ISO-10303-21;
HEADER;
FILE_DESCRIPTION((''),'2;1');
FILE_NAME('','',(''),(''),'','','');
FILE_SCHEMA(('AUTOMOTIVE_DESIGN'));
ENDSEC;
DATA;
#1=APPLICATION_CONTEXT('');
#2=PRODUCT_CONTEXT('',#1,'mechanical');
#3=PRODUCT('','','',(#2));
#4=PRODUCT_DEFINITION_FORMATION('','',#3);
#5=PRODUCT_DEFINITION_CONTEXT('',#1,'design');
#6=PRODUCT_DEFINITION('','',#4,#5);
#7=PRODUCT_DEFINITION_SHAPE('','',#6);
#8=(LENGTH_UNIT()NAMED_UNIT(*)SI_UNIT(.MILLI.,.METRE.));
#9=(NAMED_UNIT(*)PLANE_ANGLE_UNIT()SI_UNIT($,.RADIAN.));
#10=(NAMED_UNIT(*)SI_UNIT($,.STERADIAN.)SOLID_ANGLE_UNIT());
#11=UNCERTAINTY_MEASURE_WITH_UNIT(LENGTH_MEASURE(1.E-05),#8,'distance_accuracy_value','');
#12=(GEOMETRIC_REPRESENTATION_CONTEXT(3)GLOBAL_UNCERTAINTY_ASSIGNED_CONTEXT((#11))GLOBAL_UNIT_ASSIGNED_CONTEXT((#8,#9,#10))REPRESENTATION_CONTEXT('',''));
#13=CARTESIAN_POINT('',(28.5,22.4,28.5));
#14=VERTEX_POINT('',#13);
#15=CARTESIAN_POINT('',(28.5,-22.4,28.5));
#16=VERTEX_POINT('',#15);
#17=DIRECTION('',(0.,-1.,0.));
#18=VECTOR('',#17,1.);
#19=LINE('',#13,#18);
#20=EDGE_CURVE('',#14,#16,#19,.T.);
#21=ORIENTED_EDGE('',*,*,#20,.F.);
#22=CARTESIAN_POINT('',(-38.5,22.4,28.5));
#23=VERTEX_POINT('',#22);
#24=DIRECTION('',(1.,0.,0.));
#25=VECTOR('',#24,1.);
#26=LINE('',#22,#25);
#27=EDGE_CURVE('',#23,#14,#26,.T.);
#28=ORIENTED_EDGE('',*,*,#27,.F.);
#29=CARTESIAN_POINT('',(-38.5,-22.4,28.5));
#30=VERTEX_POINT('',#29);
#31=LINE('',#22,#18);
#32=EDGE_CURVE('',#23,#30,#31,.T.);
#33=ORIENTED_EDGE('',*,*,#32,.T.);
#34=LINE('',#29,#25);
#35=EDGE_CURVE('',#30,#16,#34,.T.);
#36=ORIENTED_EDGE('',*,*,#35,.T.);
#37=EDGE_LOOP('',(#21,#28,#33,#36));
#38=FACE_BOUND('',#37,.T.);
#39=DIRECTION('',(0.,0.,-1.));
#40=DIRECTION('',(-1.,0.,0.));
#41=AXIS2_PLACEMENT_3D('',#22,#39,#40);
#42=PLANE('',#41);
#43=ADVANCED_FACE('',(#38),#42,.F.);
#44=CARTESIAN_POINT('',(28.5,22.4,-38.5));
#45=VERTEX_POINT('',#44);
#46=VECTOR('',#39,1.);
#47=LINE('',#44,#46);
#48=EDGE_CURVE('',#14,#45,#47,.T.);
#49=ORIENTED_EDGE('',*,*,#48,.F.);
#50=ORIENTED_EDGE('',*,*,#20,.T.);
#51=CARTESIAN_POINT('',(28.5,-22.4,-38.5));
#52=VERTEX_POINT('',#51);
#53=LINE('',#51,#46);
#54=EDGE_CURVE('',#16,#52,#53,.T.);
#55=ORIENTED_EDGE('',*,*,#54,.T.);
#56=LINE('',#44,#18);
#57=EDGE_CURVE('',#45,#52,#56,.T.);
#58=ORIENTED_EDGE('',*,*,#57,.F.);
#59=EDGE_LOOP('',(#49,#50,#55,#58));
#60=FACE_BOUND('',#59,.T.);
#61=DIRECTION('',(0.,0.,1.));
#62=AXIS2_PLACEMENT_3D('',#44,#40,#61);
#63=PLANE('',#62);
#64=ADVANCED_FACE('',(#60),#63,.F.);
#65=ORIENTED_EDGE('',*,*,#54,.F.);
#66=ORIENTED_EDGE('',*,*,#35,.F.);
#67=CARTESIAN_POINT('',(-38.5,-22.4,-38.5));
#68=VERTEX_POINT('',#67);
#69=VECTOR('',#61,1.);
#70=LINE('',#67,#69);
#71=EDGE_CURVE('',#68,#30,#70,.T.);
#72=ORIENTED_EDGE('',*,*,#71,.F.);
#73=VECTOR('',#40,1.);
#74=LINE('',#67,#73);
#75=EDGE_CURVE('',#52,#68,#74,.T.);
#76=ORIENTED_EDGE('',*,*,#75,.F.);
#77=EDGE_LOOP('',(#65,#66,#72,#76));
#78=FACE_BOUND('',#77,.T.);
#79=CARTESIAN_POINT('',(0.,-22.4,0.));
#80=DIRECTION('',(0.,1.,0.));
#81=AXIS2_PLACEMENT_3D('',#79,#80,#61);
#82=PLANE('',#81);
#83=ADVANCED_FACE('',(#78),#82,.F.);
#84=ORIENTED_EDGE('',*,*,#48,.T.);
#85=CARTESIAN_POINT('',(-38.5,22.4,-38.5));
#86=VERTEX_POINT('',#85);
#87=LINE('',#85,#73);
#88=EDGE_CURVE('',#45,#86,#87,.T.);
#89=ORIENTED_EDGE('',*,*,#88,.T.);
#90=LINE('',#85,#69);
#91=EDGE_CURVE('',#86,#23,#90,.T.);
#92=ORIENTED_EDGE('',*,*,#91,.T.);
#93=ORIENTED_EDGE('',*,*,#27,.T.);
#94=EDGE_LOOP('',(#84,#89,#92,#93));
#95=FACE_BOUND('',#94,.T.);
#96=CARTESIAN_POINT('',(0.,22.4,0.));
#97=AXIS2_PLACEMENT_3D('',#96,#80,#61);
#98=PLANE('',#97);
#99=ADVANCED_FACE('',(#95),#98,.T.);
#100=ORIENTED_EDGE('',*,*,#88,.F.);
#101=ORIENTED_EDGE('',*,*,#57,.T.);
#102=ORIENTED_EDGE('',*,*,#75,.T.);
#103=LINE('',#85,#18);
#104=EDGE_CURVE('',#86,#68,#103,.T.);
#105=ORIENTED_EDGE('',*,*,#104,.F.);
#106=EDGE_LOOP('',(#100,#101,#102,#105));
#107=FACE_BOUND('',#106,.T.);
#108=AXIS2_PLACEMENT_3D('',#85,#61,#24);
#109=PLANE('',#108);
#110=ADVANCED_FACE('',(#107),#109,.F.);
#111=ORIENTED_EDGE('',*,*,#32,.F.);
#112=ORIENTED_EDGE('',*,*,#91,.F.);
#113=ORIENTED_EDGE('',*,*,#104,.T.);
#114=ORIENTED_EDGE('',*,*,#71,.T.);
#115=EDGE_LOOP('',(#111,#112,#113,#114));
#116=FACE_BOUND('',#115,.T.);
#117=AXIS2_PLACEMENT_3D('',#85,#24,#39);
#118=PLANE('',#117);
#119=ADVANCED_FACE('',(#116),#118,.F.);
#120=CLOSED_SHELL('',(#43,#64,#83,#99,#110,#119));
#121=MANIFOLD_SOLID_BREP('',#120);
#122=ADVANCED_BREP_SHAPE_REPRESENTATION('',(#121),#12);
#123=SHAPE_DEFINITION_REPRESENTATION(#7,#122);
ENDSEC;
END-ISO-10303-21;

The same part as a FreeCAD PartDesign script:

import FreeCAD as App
import Part
import Sketcher
Q = App.Units.Quantity


def add_polygon(sketch, points):
    """Adds a closed chain of lines whose ends are joined by coincident constraints."""
    first, n = sketch.GeometryCount, len(points)
    for a, b in zip(points, points[1:] + points[:1]):
        sketch.addGeometry(Part.LineSegment(App.Vector(*a, 0), App.Vector(*b, 0)), False)
    for i in range(n):
        sketch.addConstraint(Sketcher.Constraint("Coincident", first + i, 2, first + (i + 1) % n, 1))

doc = App.newDocument("Part")
body = doc.addObject("PartDesign::Body", "Body")

sketch1 = body.newObject("Sketcher::SketchObject", "Sketch")
sketch1.AttachmentSupport = (doc.getObject("XZ_Plane"), [""])
sketch1.MapMode = "FlatFace"
add_polygon(sketch1, [(-38.5, -38.5), (-38.5, 28.5), (28.5, 28.5), (28.5, -38.5)])
sketch1.addConstraint([
    Sketcher.Constraint("Vertical", 0),
    Sketcher.Constraint("Horizontal", 1),
    Sketcher.Constraint("Vertical", 2),
    Sketcher.Constraint("Horizontal", 3),
    Sketcher.Constraint("Equal", 3, 0),
    Sketcher.Constraint("DistanceX", 1, 1, 1, 2, Q("67 mm")),
    Sketcher.Constraint("DistanceX", 0, 2, -1, 1, Q("38.5 mm")),
    Sketcher.Constraint("DistanceY", -1, 1, 0, 2, Q("28.5 mm")),
])
pad1 = body.newObject("PartDesign::Pad", "Pad")
pad1.Profile = sketch1
pad1.Length = 44.8
pad1.Midplane = True

doc.recompute()
